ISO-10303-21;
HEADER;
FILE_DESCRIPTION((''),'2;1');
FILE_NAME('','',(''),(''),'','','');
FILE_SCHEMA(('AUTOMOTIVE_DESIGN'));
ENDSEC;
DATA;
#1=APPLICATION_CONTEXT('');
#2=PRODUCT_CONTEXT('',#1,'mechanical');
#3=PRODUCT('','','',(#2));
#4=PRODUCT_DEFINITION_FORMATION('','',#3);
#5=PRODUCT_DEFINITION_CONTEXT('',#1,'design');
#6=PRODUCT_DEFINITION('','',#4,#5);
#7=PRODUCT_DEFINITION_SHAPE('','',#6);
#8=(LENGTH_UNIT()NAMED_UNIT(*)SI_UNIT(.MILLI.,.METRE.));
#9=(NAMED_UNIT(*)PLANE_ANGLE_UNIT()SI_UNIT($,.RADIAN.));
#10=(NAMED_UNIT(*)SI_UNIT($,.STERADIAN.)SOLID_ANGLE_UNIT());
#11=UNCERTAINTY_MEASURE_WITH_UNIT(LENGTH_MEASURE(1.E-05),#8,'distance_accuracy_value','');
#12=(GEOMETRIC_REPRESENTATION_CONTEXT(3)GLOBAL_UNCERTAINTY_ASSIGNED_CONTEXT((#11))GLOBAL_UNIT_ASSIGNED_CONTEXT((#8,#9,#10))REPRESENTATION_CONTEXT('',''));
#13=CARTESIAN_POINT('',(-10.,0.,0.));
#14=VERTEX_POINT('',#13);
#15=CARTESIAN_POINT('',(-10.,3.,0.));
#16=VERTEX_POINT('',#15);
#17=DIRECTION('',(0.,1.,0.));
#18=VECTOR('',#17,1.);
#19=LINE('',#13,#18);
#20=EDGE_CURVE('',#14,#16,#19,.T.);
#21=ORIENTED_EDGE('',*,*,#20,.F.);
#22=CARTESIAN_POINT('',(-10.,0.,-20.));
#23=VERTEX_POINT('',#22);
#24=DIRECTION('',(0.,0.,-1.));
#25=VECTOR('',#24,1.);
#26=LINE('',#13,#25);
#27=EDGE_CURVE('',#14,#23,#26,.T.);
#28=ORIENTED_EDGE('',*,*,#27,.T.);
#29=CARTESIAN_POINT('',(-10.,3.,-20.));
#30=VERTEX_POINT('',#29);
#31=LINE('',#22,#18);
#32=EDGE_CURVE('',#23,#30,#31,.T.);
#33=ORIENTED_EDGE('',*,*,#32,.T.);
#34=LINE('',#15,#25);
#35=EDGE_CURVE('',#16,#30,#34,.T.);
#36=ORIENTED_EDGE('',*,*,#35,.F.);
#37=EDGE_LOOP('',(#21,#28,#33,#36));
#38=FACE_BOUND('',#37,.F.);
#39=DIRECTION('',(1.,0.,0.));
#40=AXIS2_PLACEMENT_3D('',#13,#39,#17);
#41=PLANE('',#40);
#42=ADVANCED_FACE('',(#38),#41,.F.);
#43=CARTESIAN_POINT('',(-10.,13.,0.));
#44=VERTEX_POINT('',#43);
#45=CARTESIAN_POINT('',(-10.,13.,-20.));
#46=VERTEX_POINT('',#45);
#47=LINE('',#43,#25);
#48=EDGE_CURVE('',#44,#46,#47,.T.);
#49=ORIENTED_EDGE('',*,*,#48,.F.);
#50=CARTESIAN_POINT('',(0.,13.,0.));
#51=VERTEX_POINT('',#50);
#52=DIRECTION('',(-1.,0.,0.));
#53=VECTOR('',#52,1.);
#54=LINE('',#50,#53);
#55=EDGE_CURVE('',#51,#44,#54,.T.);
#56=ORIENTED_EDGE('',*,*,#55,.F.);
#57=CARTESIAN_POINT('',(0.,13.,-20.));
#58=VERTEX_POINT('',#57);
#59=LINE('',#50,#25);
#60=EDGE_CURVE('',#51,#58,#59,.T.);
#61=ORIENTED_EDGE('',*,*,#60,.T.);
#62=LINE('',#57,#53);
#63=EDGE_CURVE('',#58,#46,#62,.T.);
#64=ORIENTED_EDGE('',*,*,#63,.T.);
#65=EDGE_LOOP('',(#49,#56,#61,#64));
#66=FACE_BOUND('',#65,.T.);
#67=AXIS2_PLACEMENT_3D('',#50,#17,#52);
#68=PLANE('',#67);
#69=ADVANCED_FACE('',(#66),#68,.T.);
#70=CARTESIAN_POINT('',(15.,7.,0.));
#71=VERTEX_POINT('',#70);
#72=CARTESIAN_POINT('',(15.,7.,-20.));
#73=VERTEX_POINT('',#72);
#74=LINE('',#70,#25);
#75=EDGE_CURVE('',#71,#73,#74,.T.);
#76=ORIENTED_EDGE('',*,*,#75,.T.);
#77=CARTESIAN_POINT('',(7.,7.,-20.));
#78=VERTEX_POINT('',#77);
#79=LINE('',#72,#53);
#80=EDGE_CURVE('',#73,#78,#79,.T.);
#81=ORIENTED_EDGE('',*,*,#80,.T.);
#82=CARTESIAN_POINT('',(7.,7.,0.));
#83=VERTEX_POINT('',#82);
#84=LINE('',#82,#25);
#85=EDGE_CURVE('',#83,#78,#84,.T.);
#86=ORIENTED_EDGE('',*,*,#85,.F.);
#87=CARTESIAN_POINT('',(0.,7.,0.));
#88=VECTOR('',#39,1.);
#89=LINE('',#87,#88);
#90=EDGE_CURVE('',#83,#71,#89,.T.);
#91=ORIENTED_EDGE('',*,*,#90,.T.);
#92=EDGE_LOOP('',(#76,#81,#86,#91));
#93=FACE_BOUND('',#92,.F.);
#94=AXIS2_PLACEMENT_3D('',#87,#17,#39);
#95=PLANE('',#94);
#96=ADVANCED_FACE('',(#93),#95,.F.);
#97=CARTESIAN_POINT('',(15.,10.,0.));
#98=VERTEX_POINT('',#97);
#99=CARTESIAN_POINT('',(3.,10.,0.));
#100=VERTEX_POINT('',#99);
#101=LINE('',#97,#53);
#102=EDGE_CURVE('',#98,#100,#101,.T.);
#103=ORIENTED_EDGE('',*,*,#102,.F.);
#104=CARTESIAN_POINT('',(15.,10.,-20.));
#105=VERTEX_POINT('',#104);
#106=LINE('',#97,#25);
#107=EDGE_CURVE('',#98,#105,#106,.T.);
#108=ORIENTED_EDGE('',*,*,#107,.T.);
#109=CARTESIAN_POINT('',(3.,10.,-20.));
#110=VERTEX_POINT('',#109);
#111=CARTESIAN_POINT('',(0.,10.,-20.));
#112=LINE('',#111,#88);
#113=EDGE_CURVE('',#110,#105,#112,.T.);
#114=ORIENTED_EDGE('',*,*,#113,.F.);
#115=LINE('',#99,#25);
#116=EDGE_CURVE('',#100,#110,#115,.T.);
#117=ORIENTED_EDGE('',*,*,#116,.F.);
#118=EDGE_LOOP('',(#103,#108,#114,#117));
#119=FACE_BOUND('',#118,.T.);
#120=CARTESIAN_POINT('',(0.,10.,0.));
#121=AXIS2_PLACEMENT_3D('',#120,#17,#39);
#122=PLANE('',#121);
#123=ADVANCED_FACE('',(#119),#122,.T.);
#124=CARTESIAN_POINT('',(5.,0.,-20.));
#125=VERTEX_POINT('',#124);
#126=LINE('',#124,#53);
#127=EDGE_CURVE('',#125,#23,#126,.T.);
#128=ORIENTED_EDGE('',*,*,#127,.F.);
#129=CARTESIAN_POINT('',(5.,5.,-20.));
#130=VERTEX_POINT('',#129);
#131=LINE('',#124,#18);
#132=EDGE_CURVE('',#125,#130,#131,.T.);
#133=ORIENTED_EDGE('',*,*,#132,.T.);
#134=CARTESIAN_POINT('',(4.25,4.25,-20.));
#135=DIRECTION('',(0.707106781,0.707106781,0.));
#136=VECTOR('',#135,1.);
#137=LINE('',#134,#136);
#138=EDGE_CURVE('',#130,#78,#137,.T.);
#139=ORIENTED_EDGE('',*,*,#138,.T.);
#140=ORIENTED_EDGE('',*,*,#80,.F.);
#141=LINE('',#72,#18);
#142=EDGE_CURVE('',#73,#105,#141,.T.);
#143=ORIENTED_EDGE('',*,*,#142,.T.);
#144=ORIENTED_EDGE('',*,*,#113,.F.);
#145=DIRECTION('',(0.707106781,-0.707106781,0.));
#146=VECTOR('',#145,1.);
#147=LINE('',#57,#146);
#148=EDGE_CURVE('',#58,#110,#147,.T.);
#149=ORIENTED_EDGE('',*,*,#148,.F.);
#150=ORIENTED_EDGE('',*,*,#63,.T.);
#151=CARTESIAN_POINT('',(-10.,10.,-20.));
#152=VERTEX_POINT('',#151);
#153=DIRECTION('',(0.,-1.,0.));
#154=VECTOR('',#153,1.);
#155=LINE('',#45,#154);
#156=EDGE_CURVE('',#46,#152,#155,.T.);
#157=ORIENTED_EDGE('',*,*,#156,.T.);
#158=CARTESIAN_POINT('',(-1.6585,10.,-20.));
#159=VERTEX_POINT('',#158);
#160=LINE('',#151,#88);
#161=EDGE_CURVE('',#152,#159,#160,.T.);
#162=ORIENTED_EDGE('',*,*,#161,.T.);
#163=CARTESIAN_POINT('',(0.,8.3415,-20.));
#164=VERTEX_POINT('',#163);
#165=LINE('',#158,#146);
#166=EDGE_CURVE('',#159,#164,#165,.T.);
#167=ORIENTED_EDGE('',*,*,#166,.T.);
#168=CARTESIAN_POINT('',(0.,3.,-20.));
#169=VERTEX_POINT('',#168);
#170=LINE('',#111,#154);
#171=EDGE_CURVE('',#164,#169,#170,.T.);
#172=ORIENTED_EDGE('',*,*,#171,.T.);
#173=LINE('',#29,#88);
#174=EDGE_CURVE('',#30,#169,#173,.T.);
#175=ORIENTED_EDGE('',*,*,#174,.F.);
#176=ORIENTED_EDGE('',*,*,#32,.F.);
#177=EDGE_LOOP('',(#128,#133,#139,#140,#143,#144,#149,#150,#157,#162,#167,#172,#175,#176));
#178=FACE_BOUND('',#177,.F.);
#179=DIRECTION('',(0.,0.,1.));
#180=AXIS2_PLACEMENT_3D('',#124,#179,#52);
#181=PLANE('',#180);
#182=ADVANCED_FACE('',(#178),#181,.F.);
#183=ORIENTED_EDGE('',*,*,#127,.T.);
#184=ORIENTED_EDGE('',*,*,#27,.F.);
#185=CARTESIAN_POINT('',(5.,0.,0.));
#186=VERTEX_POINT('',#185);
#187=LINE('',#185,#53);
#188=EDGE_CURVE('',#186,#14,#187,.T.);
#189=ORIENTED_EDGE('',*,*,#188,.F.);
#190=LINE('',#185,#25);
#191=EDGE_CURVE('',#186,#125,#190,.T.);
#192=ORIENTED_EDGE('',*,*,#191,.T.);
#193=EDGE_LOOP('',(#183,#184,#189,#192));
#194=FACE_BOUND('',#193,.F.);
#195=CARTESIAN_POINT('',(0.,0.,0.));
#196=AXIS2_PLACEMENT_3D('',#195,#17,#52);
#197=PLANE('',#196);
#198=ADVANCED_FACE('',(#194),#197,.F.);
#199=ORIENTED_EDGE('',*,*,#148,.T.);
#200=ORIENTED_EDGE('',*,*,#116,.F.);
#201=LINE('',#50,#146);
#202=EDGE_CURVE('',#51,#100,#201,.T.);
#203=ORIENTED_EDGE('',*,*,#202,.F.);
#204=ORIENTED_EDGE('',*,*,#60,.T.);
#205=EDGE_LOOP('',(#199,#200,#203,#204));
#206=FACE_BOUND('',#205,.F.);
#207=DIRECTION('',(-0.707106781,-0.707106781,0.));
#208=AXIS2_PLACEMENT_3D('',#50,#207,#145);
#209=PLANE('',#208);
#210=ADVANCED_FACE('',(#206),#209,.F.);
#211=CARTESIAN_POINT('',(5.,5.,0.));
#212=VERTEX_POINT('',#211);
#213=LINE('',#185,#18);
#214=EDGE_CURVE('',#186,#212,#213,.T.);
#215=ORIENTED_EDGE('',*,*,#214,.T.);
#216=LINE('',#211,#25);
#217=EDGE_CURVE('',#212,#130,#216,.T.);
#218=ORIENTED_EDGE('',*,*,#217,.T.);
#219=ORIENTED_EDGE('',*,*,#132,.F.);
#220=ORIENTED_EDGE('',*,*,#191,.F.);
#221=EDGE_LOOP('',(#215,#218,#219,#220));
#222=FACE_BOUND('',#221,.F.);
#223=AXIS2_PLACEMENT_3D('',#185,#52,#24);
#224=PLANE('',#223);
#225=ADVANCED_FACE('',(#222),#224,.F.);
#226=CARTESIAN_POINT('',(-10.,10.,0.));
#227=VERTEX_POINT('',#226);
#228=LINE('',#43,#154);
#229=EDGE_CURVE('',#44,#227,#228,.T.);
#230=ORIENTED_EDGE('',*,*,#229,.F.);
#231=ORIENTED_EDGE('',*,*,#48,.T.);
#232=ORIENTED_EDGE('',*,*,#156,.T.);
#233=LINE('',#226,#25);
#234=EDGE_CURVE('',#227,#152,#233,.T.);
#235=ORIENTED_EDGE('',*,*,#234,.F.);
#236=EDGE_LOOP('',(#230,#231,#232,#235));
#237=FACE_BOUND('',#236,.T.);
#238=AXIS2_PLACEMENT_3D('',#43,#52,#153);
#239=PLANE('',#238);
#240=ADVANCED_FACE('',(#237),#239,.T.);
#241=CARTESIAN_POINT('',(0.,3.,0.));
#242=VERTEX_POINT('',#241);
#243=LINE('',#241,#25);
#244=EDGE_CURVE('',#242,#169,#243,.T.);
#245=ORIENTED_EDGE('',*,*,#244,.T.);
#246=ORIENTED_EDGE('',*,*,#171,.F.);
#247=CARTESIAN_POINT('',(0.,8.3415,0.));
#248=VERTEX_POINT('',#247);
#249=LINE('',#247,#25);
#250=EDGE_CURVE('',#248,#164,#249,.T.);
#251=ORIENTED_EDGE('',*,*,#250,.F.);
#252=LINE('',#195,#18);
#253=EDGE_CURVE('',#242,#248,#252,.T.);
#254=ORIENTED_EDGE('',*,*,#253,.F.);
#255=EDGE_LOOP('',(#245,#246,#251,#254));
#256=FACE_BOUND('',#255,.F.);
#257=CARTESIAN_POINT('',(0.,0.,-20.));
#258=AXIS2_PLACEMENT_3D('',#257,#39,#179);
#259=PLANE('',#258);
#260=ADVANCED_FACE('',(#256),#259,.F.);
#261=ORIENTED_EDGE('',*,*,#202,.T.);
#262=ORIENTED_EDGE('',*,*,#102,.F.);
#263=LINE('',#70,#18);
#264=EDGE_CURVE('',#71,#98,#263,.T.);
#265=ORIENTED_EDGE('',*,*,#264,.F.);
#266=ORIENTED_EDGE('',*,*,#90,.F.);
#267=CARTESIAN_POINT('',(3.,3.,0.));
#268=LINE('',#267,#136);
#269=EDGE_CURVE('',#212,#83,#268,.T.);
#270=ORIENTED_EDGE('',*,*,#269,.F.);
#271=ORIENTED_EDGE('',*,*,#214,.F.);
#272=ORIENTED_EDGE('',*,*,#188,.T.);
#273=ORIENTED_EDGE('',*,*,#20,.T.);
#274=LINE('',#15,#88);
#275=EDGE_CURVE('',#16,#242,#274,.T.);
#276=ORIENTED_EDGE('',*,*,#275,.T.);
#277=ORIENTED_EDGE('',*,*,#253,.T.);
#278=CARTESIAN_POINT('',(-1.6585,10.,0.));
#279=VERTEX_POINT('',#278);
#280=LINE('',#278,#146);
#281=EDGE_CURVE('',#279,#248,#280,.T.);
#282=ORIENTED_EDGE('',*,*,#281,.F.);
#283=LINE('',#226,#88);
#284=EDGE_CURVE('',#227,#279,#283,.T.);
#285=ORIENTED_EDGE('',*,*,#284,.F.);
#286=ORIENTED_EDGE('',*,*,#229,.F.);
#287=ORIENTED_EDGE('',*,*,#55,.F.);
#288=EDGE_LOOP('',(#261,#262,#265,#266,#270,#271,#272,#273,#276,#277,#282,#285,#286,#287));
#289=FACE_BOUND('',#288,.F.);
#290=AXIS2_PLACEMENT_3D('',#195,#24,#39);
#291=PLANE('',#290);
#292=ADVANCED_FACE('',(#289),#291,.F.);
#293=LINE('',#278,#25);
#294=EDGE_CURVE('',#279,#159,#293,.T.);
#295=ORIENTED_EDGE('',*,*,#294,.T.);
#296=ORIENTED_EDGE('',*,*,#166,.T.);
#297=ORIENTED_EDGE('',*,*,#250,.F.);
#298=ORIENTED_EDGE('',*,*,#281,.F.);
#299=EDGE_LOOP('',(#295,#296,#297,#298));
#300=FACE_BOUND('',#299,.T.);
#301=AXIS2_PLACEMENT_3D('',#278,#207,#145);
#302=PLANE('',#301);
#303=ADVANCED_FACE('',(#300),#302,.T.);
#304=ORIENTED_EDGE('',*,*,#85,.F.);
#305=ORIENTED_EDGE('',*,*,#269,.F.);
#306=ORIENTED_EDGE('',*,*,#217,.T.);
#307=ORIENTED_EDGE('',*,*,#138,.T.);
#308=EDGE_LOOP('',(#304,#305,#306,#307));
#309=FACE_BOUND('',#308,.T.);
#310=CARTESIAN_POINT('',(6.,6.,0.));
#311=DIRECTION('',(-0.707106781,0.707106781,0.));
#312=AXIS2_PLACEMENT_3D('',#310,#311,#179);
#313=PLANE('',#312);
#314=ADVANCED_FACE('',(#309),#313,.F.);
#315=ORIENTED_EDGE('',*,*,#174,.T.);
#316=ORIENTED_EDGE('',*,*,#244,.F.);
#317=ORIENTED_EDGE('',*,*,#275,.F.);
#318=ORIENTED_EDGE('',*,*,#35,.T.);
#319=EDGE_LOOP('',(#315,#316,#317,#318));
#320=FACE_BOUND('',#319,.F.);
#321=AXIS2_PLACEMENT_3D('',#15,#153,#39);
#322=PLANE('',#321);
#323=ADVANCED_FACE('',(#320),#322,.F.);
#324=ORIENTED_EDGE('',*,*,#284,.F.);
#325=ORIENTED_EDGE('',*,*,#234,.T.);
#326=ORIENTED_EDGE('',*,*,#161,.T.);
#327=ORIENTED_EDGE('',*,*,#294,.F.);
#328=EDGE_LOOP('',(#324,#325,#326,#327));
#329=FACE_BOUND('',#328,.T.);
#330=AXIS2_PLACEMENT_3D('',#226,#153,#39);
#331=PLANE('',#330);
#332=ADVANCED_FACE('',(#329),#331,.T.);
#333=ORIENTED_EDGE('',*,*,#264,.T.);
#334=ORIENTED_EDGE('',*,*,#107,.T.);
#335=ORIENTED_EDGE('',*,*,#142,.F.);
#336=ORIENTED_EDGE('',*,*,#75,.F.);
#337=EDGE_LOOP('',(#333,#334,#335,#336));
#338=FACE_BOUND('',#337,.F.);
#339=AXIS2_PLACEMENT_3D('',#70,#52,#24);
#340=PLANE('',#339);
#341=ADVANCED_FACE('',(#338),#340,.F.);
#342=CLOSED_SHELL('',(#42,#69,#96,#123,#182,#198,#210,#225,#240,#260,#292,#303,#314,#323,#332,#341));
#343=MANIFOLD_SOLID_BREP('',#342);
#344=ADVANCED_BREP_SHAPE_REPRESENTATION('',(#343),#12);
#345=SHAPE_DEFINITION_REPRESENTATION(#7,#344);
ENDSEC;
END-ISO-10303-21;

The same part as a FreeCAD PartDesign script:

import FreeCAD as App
import Part
import Sketcher


def edges_at(feature, points):
    """Names of the edges that pass closest to the given points."""
    edges = feature.Shape.Edges
    near = lambda p: min(range(len(edges)), key=lambda i: edges[i].distToShape(Part.Vertex(*p))[0])
    return sorted({f"Edge{near(p) + 1}" for p in points})

doc = App.newDocument("Part")
params = doc.addObject("Spreadsheet::Sheet", "Params")
for row, (alias, value) in enumerate([
    ("sketch1_width", "5 mm"),
    ("sketch1_height", "20 mm"),
    ("pad1_length", "7 mm"),
    ("sketch2_height", "20 mm"),
    ("sketch2_width", "15 mm"),
    ("pad2_length", "3 mm"),
    ("chamfer_size", "2 mm"),
    ("sketch3_width", "10 mm"),
    ("sketch3_width2", "3 mm"),
    ("pad3_length", "20 mm"),
], start=1):
    params.set(f"A{row}", alias)
    params.set(f"B{row}", "=" + value)
    params.setAlias(f"B{row}", alias)

body = doc.addObject("PartDesign::Body", "Body")

# Sketch on XZ plane
sketch1 = doc.addObject("Sketcher::SketchObject", "Sketch")
body.addObject(sketch1)
sketch1.AttachmentSupport = (doc.XZ_Plane, [""])
sketch1.MapMode = "FlatFace"
sketch1.addGeometry([
    Part.LineSegment(App.Vector(0, -20, 0), App.Vector(0, 0, 0)),
    Part.LineSegment(App.Vector(0, 0, 0), App.Vector(5, 0, 0)),
    Part.LineSegment(App.Vector(5, 0, 0), App.Vector(5, -20, 0)),
    Part.LineSegment(App.Vector(5, -20, 0), App.Vector(0, -20, 0)),
], False)
sketch1.addConstraint([
    Sketcher.Constraint("Coincident", 0, 2, 1, 1),
    Sketcher.Constraint("Coincident", 1, 2, 2, 1),
    Sketcher.Constraint("Coincident", 2, 2, 3, 1),
    Sketcher.Constraint("Coincident", 3, 2, 0, 1),
    Sketcher.Constraint("Vertical", 0),
    Sketcher.Constraint("Horizontal", 1),
    Sketcher.Constraint("Vertical", 2),
    Sketcher.Constraint("Horizontal", 3),
    Sketcher.Constraint("Coincident", 0, 2, -1, 1),
    Sketcher.Constraint("DistanceX", 1, 1, 1, 2, 5.0),
    Sketcher.Constraint("DistanceY", 0, 1, 0, 2, 20.0),
])
sketch1.setExpression("Constraints[9]", "Params.sketch1_width")
sketch1.setExpression("Constraints[10]", "Params.sketch1_height")
pad1 = doc.addObject("PartDesign::Pad", "Pad")
body.addObject(pad1)
pad1.Profile = sketch1
pad1.setExpression("Length", "Params.pad1_length")
pad1.Reversed = True

# Sketch on XZ plane
sketch2 = doc.addObject("Sketcher::SketchObject", "Sketch001")
body.addObject(sketch2)
sketch2.AttachmentSupport = (doc.XZ_Plane, [""])
sketch2.MapMode = "FlatFace"
sketch2.AttachmentOffset = App.Placement(App.Vector(0, 0, -7), App.Rotation())
sketch2.addGeometry([
    Part.LineSegment(App.Vector(0, -20, 0), App.Vector(0, 0, 0)),
    Part.LineSegment(App.Vector(0, 0, 0), App.Vector(15, 0, 0)),
    Part.LineSegment(App.Vector(15, 0, 0), App.Vector(15, -20, 0)),
    Part.LineSegment(App.Vector(15, -20, 0), App.Vector(0, -20, 0)),
], False)
sketch2.addConstraint([
    Sketcher.Constraint("Coincident", 0, 2, 1, 1),
    Sketcher.Constraint("Coincident", 1, 2, 2, 1),
    Sketcher.Constraint("Coincident", 2, 2, 3, 1),
    Sketcher.Constraint("Coincident", 3, 2, 0, 1),
    Sketcher.Constraint("Vertical", 0),
    Sketcher.Constraint("Horizontal", 1),
    Sketcher.Constraint("Vertical", 2),
    Sketcher.Constraint("Horizontal", 3),
    Sketcher.Constraint("Coincident", 0, 2, -1, 1),
    Sketcher.Constraint("DistanceY", 0, 1, 0, 2, 20.0),
    Sketcher.Constraint("DistanceX", 1, 1, 1, 2, 15.0),
])
sketch2.setExpression("Constraints[9]", "Params.sketch2_height")
sketch2.setExpression("Constraints[10]", "Params.sketch2_width")
pad2 = doc.addObject("PartDesign::Pad", "Pad001")
body.addObject(pad2)
pad2.Profile = sketch2
pad2.setExpression("Length", "Params.pad2_length")
pad2.Reversed = True
doc.recompute()

chamfer = doc.addObject("PartDesign::Chamfer", "Chamfer")
body.addObject(chamfer)
chamfer.Base = (pad2, edges_at(pad2, [(5, 7, -10)]))
chamfer.setExpression("Size", "Params.chamfer_size")

# Sketch on XY plane
sketch3 = doc.addObject("Sketcher::SketchObject", "Sketch002")
body.addObject(sketch3)
sketch3.AttachmentSupport = (doc.XY_Plane, [""])
sketch3.MapMode = "FlatFace"
sketch3.addGeometry([
    Part.LineSegment(App.Vector(-10, 0, 0), App.Vector(0, 0, 0)),  # 0
    Part.LineSegment(App.Vector(0, 0, 0), App.Vector(0, 3, 0)),  # 1
    Part.LineSegment(App.Vector(0, 3, 0), App.Vector(-10, 3, 0)),  # 2
    Part.LineSegment(App.Vector(-10, 3, 0), App.Vector(-10, 0, 0)),  # 3
    Part.LineSegment(App.Vector(-1.7, 10, 0), App.Vector(0, 8.3, 0)),  # 4
    Part.LineSegment(App.Vector(0, 8.3, 0), App.Vector(0, 10, 0)),  # 5
    Part.LineSegment(App.Vector(0, 10, 0), App.Vector(3, 10, 0)),  # 6
    Part.LineSegment(App.Vector(3, 10, 0), App.Vector(0, 13, 0)),  # 7
    Part.LineSegment(App.Vector(0, 13, 0), App.Vector(-10, 13, 0)),  # 8
    Part.LineSegment(App.Vector(-10, 13, 0), App.Vector(-10, 10, 0)),  # 9
    Part.LineSegment(App.Vector(-10, 10, 0), App.Vector(-1.7, 10, 0)),  # 10
], False)
sketch3.addConstraint([
    Sketcher.Constraint("Coincident", 0, 2, 1, 1),
    Sketcher.Constraint("Coincident", 1, 2, 2, 1),
    Sketcher.Constraint("Coincident", 2, 2, 3, 1),
    Sketcher.Constraint("Coincident", 3, 2, 0, 1),
    Sketcher.Constraint("Coincident", 4, 2, 5, 1),
    Sketcher.Constraint("Coincident", 5, 2, 6, 1),
    Sketcher.Constraint("Coincident", 6, 2, 7, 1),
    Sketcher.Constraint("Coincident", 7, 2, 8, 1),
    Sketcher.Constraint("Coincident", 8, 2, 9, 1),
    Sketcher.Constraint("Coincident", 9, 2, 10, 1),
    Sketcher.Constraint("Coincident", 10, 2, 4, 1),
    Sketcher.Constraint("Horizontal", 0),
    Sketcher.Constraint("Vertical", 1),
    Sketcher.Constraint("Horizontal", 2),
    Sketcher.Constraint("Vertical", 3),
    Sketcher.Constraint("Vertical", 5),
    Sketcher.Constraint("Horizontal", 6),
    Sketcher.Constraint("Horizontal", 8),
    Sketcher.Constraint("Vertical", 9),
    Sketcher.Constraint("Horizontal", 10),
    Sketcher.Constraint("Coincident", 0, 2, -1, 1),
    Sketcher.Constraint("PointOnObject", 4, 2, -2),
    Sketcher.Constraint("PointOnObject", 7, 2, -2),
    Sketcher.Constraint("Parallel", 4, 7),
    Sketcher.Constraint("Horizontal", 6, 2, 9, 2),
    Sketcher.Constraint("Vertical", 3, 2, 8, 2),
    Sketcher.Constraint("Equal", 6, 1),
    Sketcher.Constraint("Equal", 3, 9),
    Sketcher.Constraint("DistanceX", 0, 1, 0, 2, 10.0),
    Sketcher.Constraint("DistanceX", 6, 1, 6, 2, 3.0),
    Sketcher.Constraint("DistanceY", -1, 1, 5, 2, 10.0),
    Sketcher.Constraint("DistanceX", 10, 1, 10, 2, 8.3415),
])
sketch3.setExpression("Constraints[28]", "Params.sketch3_width")
sketch3.setExpression("Constraints[29]", "Params.sketch3_width2")
pad3 = doc.addObject("PartDesign::Pad", "Pad002")
body.addObject(pad3)
pad3.Profile = sketch3
pad3.setExpression("Length", "Params.pad3_length")
pad3.Reversed = True

doc.recompute()
